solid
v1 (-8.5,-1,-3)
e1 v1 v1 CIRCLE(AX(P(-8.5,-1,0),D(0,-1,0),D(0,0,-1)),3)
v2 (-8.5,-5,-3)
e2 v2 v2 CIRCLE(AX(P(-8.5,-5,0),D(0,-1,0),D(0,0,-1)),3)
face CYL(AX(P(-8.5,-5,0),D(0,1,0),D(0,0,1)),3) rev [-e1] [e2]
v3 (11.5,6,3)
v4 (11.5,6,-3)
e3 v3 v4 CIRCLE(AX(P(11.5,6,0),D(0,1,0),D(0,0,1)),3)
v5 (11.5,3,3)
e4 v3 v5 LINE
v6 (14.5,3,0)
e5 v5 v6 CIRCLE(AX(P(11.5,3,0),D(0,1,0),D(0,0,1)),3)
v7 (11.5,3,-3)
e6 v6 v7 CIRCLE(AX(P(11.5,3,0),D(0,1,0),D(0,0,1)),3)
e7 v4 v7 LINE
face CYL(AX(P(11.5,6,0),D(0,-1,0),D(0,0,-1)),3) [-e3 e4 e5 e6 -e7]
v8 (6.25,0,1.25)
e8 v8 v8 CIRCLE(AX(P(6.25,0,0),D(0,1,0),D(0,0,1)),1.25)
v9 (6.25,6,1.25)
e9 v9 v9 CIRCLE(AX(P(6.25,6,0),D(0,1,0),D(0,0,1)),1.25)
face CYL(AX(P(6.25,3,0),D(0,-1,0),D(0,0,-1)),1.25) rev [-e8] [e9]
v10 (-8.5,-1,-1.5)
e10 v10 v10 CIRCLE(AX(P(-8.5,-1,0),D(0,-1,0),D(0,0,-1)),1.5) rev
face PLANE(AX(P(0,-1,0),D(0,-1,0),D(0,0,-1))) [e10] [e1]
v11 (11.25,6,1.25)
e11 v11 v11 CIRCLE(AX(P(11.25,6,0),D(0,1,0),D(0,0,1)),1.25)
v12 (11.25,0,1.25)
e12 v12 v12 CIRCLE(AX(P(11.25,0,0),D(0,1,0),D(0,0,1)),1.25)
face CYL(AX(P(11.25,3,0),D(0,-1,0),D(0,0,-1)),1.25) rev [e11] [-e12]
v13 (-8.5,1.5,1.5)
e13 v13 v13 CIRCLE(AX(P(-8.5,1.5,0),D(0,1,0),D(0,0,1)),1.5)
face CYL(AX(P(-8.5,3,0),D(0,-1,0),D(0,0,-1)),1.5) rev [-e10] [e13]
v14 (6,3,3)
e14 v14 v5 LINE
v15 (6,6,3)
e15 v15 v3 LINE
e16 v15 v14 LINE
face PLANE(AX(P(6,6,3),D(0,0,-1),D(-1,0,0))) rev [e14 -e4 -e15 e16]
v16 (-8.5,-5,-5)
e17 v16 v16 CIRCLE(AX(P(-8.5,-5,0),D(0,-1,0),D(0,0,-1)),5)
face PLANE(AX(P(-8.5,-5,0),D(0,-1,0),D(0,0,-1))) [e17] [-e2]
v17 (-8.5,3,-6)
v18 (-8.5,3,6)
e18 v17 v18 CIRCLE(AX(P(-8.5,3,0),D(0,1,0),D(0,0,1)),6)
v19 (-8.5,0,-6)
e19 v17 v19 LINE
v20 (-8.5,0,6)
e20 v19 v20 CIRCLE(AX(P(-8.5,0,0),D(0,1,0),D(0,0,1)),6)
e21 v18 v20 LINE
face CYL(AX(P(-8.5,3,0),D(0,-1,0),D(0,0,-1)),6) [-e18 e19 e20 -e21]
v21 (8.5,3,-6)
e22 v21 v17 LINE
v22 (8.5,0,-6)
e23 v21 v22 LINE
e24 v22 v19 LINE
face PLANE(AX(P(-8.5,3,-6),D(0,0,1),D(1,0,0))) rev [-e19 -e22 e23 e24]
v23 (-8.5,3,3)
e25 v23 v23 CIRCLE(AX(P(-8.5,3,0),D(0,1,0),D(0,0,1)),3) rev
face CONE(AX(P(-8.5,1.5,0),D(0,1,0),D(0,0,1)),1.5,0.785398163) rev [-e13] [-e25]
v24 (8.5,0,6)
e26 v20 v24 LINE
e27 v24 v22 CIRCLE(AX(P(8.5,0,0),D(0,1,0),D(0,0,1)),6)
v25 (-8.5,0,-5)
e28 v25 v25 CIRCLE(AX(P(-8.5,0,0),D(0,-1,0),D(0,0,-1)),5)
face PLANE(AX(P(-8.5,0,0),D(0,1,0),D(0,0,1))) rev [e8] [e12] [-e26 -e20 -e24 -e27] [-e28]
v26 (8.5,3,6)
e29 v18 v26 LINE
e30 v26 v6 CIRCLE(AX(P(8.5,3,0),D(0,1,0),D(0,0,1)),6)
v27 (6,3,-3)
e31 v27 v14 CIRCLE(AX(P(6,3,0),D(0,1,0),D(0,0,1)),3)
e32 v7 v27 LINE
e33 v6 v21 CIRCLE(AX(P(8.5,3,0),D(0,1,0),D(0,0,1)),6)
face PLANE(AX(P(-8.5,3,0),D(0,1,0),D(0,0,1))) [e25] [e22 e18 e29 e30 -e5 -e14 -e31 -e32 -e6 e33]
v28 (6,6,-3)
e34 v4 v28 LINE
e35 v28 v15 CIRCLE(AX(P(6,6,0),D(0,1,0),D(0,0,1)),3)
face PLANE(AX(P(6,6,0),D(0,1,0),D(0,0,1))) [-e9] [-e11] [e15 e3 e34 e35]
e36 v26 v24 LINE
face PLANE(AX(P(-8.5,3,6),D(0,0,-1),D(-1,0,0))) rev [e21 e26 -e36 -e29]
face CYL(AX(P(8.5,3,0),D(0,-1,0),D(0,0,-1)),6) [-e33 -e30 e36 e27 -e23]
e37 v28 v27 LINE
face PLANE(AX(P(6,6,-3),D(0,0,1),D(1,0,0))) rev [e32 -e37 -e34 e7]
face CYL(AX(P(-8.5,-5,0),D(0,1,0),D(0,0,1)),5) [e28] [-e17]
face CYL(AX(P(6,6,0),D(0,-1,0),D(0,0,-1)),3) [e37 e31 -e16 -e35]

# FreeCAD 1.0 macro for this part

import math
import FreeCAD as App
import Part
import Sketcher
from FreeCAD import Vector


def edges_at(feature, points):
    """Names of the edges that pass closest to the given points."""
    edges = feature.Shape.Edges
    near = lambda p: min(range(len(edges)), key=lambda i: edges[i].distToShape(Part.Vertex(*p))[0])
    return sorted({f"Edge{near(p) + 1}" for p in points})

doc = App.newDocument("Part")
body = doc.addObject("PartDesign::Body", "Body")

sketch1 = body.newObject("Sketcher::SketchObject", "Sketch")
sketch1.AttachmentSupport = (doc.getObject("XZ_Plane"), [""])
sketch1.MapMode = "FlatFace"
sketch1.addGeometry([
    Part.LineSegment(Vector(8.5, -6, 0), Vector(-8.5, -6, 0)),
    Part.ArcOfCircle(Part.Circle(Vector(-8.5, 0, 0), Vector(0, 0, 1), 6), math.radians(90), math.radians(270)),
    Part.LineSegment(Vector(-8.5, 6, 0), Vector(8.5, 6, 0)),
    Part.ArcOfCircle(Part.Circle(Vector(8.5, 0, 0), Vector(0, 0, 1), 6), math.radians(-90), math.radians(90)),
    Part.Circle(Vector(11.2, 0, 0), Vector(0, 0, 1), 1.2),
    Part.Circle(Vector(6.2, 0, 0), Vector(0, 0, 1), 1.2),
    Part.Circle(Vector(-8.5, 0, 0), Vector(0, 0, 1), 1.5),
], False)
sketch1.addConstraint([
    Sketcher.Constraint("Tangent", 0, 2, 1, 2),
    Sketcher.Constraint("Tangent", 1, 1, 2, 1),
    Sketcher.Constraint("Tangent", 2, 2, 3, 2),
    Sketcher.Constraint("Tangent", 3, 1, 0, 1),
    Sketcher.Constraint("Horizontal", 0),
    Sketcher.Constraint("Horizontal", 2),
    Sketcher.Constraint("Coincident", 6, 3, 1, 3),
    Sketcher.Constraint("Equal", 4, 5),
    Sketcher.Constraint("Symmetric", 1, 3, 3, 3, -1, 1),
    Sketcher.Constraint("PointOnObject", 4, 3, -1),
    Sketcher.Constraint("PointOnObject", 5, 3, -1),
    Sketcher.Constraint("Diameter", 6, 3.0),
    Sketcher.Constraint("Radius", 1, 6.0),
    Sketcher.Constraint("Diameter", 4, 2.5),
    Sketcher.Constraint("DistanceX", 0, 2, 0, 1, 17.0),
    Sketcher.Constraint("DistanceX", 5, 3, 4, 3, 5.0),
    Sketcher.Constraint("DistanceX", -1, 1, 4, 3, 11.25),
])
pad1 = body.newObject("PartDesign::Pad", "Pad")
pad1.Profile = sketch1
pad1.Length = 3
pad1.Reversed = True

sketch2 = body.newObject("Sketcher::SketchObject", "Sketch001")
sketch2.AttachmentSupport = (doc.getObject("XZ_Plane"), [""])
sketch2.MapMode = "FlatFace"
sketch2.AttachmentOffset = App.Placement(Vector(0, 0, -3), App.Rotation())
sketch2.addGeometry([
    Part.LineSegment(Vector(11.5, -3, 0), Vector(6, -3, 0)),
    Part.ArcOfCircle(Part.Circle(Vector(6, 0, 0), Vector(0, 0, 1), 3), math.radians(90), math.radians(270)),
    Part.LineSegment(Vector(6, 3, 0), Vector(11.5, 3, 0)),
    Part.ArcOfCircle(Part.Circle(Vector(11.5, 0, 0), Vector(0, 0, 1), 3), math.radians(-90), math.radians(90)),
    Part.Circle(Vector(11.2, 0, 0), Vector(0, 0, 1), 1.2),
    Part.Circle(Vector(6.2, 0, 0), Vector(0, 0, 1), 1.2),
], False)
sketch2.addConstraint([
    Sketcher.Constraint("Tangent", 0, 2, 1, 2),
    Sketcher.Constraint("Tangent", 1, 1, 2, 1),
    Sketcher.Constraint("Tangent", 2, 2, 3, 2),
    Sketcher.Constraint("Tangent", 3, 1, 0, 1),
    Sketcher.Constraint("Horizontal", 0),
    Sketcher.Constraint("Horizontal", 2),
    Sketcher.Constraint("Equal", 4, 5),
    Sketcher.Constraint("PointOnObject", 1, 3, -1),
    Sketcher.Constraint("PointOnObject", 4, 3, -1),
    Sketcher.Constraint("PointOnObject", 5, 3, -1),
    Sketcher.Constraint("Radius", 1, 3.0),
    Sketcher.Constraint("Diameter", 4, 2.5),
    Sketcher.Constraint("DistanceX", 0, 2, 0, 1, 5.5),
    Sketcher.Constraint("DistanceX", -1, 1, 1, 3, 6.0),
    Sketcher.Constraint("DistanceX", 5, 3, 4, 3, 5.0),
    Sketcher.Constraint("DistanceX", -1, 1, 4, 3, 11.25),
])
pad2 = body.newObject("PartDesign::Pad", "Pad001")
pad2.Profile = sketch2
pad2.Length = 3
pad2.Reversed = True

sketch3 = body.newObject("Sketcher::SketchObject", "Sketch002")
sketch3.AttachmentSupport = (doc.getObject("XZ_Plane"), [""])
sketch3.MapMode = "FlatFace"
sketch3.addGeometry([
    Part.Circle(Vector(-8.5, 0, 0), Vector(0, 0, 1), 5),
    Part.Circle(Vector(-8.5, 0, 0), Vector(0, 0, 1), 3),
], False)
sketch3.addConstraint([
    Sketcher.Constraint("Coincident", 1, 3, 0, 3),
    Sketcher.Constraint("PointOnObject", 0, 3, -1),
    Sketcher.Constraint("Diameter", 0, 10.0),
    Sketcher.Constraint("Diameter", 1, 6.0),
    Sketcher.Constraint("DistanceX", 0, 3, -1, 1, 8.5),
])
pad3 = body.newObject("PartDesign::Pad", "Pad002")
pad3.Profile = sketch3
pad3.Length = 5

sketch4 = body.newObject("Sketcher::SketchObject", "Sketch003")
sketch4.AttachmentSupport = (doc.getObject("XZ_Plane"), [""])
sketch4.MapMode = "FlatFace"
sketch4.addGeometry([
    Part.Circle(Vector(-8.5, 0, 0), Vector(0, 0, 1), 3),
    Part.Circle(Vector(-8.5, 0, 0), Vector(0, 0, 1), 1.5),
], False)
sketch4.addConstraint([
    Sketcher.Constraint("Coincident", 1, 3, 0, 3),
    Sketcher.Constraint("PointOnObject", 0, 3, -1),
    Sketcher.Constraint("Diameter", 0, 6.0),
    Sketcher.Constraint("Diameter", 1, 3.0),
    Sketcher.Constraint("DistanceX", 0, 3, -1, 1, 8.5),
])
pad4 = body.newObject("PartDesign::Pad", "Pad003")
pad4.Profile = sketch4
pad4.Length = 1
doc.recompute()

chamfer = body.newObject("PartDesign::Chamfer", "Chamfer")
chamfer.Base = (pad4, edges_at(pad4, [(-10, 3, 0)]))
chamfer.Size = 1.5

doc.recompute()
